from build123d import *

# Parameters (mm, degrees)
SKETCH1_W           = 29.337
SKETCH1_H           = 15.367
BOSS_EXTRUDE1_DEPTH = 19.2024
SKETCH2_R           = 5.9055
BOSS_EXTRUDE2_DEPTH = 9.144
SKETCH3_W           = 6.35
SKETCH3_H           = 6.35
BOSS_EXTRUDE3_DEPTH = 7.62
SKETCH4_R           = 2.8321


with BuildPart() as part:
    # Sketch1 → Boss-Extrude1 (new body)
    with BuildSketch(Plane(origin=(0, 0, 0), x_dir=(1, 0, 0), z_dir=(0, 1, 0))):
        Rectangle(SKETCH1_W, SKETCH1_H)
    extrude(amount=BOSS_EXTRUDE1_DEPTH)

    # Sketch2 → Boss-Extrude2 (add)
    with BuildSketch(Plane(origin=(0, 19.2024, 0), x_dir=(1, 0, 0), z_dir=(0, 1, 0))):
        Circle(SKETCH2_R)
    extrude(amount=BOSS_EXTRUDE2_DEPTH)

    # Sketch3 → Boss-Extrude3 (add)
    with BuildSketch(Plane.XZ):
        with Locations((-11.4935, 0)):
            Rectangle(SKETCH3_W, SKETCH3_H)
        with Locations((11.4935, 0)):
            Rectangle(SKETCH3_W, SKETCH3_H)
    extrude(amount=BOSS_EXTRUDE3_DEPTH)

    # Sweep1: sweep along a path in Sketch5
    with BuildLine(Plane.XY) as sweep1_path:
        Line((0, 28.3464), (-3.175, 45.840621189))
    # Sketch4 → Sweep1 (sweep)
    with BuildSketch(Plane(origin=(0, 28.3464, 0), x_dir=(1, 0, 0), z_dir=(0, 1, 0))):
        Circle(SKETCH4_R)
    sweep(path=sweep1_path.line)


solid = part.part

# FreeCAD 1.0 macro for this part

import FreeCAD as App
import Part
import Sketcher
from FreeCAD import Vector
Q = App.Units.Quantity

doc = App.newDocument("Part")
body = doc.addObject("PartDesign::Body", "Body")

# Sketch on XZ plane
sketch1 = doc.addObject("Sketcher::SketchObject", "Sketch")
body.addObject(sketch1)
sketch1.AttachmentSupport = (doc.XZ_Plane, [""])
sketch1.MapMode = "FlatFace"
sketch1.addGeometry([
    Part.LineSegment(Vector(-15, -8, 0), Vector(-15, 8, 0)),
    Part.LineSegment(Vector(-15, 8, 0), Vector(15, 8, 0)),
    Part.LineSegment(Vector(15, 8, 0), Vector(15, -8, 0)),
    Part.LineSegment(Vector(15, -8, 0), Vector(-15, -8, 0)),
], False)
sketch1.addConstraint([
    Sketcher.Constraint("Coincident", 0, 2, 1, 1),
    Sketcher.Constraint("Coincident", 1, 2, 2, 1),
    Sketcher.Constraint("Coincident", 2, 2, 3, 1),
    Sketcher.Constraint("Coincident", 3, 2, 0, 1),
    Sketcher.Constraint("Vertical", 0),
    Sketcher.Constraint("Horizontal", 1),
    Sketcher.Constraint("Vertical", 2),
    Sketcher.Constraint("Horizontal", 3),
    Sketcher.Constraint("Symmetric", 0, 2, 2, 2, -1, 1),
    Sketcher.Constraint("DistanceX", 1, 1, 1, 2, Q("1.155 in")),
    Sketcher.Constraint("DistanceY", 0, 1, 0, 2, Q("0.605 in")),
])
pad1 = doc.addObject("PartDesign::Pad", "Pad")
body.addObject(pad1)
pad1.Profile = sketch1
pad1.Length = Q("0.756 in")
pad1.Reversed = True

# Sketch on XZ plane
sketch2 = doc.addObject("Sketcher::SketchObject", "Sketch001")
body.addObject(sketch2)
sketch2.AttachmentSupport = (doc.XZ_Plane, [""])
sketch2.MapMode = "FlatFace"
sketch2.AttachmentOffset = App.Placement(Vector(0, 0, -0.756 * 25.4), App.Rotation())
sketch2.addGeometry(Part.Circle(Vector(0, 0, 0), Vector(0, 0, 1), 6), False)
sketch2.addConstraint([
    Sketcher.Constraint("Coincident", 0, 3, -1, 1),
    Sketcher.Constraint("Diameter", 0, Q("0.465 in")),
])
pad2 = doc.addObject("PartDesign::Pad", "Pad001")
body.addObject(pad2)
pad2.Profile = sketch2
pad2.Length = Q("0.36 in")
pad2.Reversed = True

# Sketch on XZ plane
sketch3 = doc.addObject("Sketcher::SketchObject", "Sketch002")
body.addObject(sketch3)
sketch3.AttachmentSupport = (doc.XZ_Plane, [""])
sketch3.MapMode = "FlatFace"
sketch3.addGeometry([
    Part.LineSegment(Vector(-15, 3, 0), Vector(-15, -3, 0)),  # 0
    Part.LineSegment(Vector(-15, -3, 0), Vector(-8, -3, 0)),  # 1
    Part.LineSegment(Vector(-8, -3, 0), Vector(-8, 3, 0)),  # 2
    Part.LineSegment(Vector(-8, 3, 0), Vector(-15, 3, 0)),  # 3
    Part.LineSegment(Vector(8, 3, 0), Vector(8, -3, 0)),  # 4
    Part.LineSegment(Vector(8, -3, 0), Vector(15, -3, 0)),  # 5
    Part.LineSegment(Vector(15, -3, 0), Vector(15, 3, 0)),  # 6
    Part.LineSegment(Vector(15, 3, 0), Vector(8, 3, 0)),  # 7
], False)
sketch3.addConstraint([
    Sketcher.Constraint("Coincident", 0, 2, 1, 1),
    Sketcher.Constraint("Coincident", 1, 2, 2, 1),
    Sketcher.Constraint("Coincident", 2, 2, 3, 1),
    Sketcher.Constraint("Coincident", 3, 2, 0, 1),
    Sketcher.Constraint("Coincident", 4, 2, 5, 1),
    Sketcher.Constraint("Coincident", 5, 2, 6, 1),
    Sketcher.Constraint("Coincident", 6, 2, 7, 1),
    Sketcher.Constraint("Coincident", 7, 2, 4, 1),
    Sketcher.Constraint("Vertical", 0),
    Sketcher.Constraint("Horizontal", 1),
    Sketcher.Constraint("Vertical", 2),
    Sketcher.Constraint("Horizontal", 3),
    Sketcher.Constraint("Vertical", 4),
    Sketcher.Constraint("Horizontal", 5),
    Sketcher.Constraint("Vertical", 6),
    Sketcher.Constraint("Horizontal", 7),
    Sketcher.Constraint("Symmetric", 2, 2, 4, 2, -1, 1),
    Sketcher.Constraint("Symmetric", 0, 2, 6, 2, -1, 1),
    Sketcher.Constraint("Horizontal", 1, 2, 4, 2),
    Sketcher.Constraint("Equal", 7, 0),
    Sketcher.Constraint("DistanceX", 1, 1, 1, 2, Q("0.25 in")),
    Sketcher.Constraint("DistanceX", 1, 2, 4, 2, Q("0.655 in")),
])
pad3 = doc.addObject("PartDesign::Pad", "Pad002")
body.addObject(pad3)
pad3.Profile = sketch3
pad3.Length = Q("0.3 in")

# Sketch on XZ plane
sketch4 = doc.addObject("Sketcher::SketchObject", "Sketch003")
body.addObject(sketch4)
sketch4.AttachmentSupport = (doc.XZ_Plane, [""])
sketch4.MapMode = "FlatFace"
sketch4.AttachmentOffset = App.Placement(Vector(0, 0, -1.116 * 25.4), App.Rotation())
sketch4.addGeometry(Part.Circle(Vector(0, 0, 0), Vector(0, 0, 1), 2.8), False)
sketch4.addConstraint([
    Sketcher.Constraint("Coincident", 0, 3, -1, 1),
    Sketcher.Constraint("Diameter", 0, Q("0.223 in")),
])

# Sketch on an angled plane
sketch5 = doc.addObject("Sketcher::SketchObject", "Sketch004")
body.addObject(sketch5)
sketch5.Placement = App.Placement(Vector(4.980498, 0.903903, 0), App.Rotation(Vector(-0.178571429, 0.983926951, 0), Vector(0, 0, 1), Vector(0.983926951, 0.178571429, 0), "ZXY"))
sketch5.addGeometry(Part.LineSegment(Vector(28, 0, 0), Vector(46, 0, 0)), False)
sketch5.addConstraint([
    Sketcher.Constraint("Horizontal", 0),
    Sketcher.Constraint("PointOnObject", 0, 1, -1),
    Sketcher.Constraint("DistanceX", 0, 1, 0, 2, Q("0.7 in")),
    Sketcher.Constraint("DistanceX", -1, 1, 0, 1, Q("27.890787 mm")),
])
doc.recompute()

additivepipe = doc.addObject("PartDesign::AdditivePipe", "AdditivePipe")
body.addObject(additivepipe)
additivepipe.Profile = sketch4
additivepipe.Spine = (sketch5, ["Edge1"])

doc.recompute()
